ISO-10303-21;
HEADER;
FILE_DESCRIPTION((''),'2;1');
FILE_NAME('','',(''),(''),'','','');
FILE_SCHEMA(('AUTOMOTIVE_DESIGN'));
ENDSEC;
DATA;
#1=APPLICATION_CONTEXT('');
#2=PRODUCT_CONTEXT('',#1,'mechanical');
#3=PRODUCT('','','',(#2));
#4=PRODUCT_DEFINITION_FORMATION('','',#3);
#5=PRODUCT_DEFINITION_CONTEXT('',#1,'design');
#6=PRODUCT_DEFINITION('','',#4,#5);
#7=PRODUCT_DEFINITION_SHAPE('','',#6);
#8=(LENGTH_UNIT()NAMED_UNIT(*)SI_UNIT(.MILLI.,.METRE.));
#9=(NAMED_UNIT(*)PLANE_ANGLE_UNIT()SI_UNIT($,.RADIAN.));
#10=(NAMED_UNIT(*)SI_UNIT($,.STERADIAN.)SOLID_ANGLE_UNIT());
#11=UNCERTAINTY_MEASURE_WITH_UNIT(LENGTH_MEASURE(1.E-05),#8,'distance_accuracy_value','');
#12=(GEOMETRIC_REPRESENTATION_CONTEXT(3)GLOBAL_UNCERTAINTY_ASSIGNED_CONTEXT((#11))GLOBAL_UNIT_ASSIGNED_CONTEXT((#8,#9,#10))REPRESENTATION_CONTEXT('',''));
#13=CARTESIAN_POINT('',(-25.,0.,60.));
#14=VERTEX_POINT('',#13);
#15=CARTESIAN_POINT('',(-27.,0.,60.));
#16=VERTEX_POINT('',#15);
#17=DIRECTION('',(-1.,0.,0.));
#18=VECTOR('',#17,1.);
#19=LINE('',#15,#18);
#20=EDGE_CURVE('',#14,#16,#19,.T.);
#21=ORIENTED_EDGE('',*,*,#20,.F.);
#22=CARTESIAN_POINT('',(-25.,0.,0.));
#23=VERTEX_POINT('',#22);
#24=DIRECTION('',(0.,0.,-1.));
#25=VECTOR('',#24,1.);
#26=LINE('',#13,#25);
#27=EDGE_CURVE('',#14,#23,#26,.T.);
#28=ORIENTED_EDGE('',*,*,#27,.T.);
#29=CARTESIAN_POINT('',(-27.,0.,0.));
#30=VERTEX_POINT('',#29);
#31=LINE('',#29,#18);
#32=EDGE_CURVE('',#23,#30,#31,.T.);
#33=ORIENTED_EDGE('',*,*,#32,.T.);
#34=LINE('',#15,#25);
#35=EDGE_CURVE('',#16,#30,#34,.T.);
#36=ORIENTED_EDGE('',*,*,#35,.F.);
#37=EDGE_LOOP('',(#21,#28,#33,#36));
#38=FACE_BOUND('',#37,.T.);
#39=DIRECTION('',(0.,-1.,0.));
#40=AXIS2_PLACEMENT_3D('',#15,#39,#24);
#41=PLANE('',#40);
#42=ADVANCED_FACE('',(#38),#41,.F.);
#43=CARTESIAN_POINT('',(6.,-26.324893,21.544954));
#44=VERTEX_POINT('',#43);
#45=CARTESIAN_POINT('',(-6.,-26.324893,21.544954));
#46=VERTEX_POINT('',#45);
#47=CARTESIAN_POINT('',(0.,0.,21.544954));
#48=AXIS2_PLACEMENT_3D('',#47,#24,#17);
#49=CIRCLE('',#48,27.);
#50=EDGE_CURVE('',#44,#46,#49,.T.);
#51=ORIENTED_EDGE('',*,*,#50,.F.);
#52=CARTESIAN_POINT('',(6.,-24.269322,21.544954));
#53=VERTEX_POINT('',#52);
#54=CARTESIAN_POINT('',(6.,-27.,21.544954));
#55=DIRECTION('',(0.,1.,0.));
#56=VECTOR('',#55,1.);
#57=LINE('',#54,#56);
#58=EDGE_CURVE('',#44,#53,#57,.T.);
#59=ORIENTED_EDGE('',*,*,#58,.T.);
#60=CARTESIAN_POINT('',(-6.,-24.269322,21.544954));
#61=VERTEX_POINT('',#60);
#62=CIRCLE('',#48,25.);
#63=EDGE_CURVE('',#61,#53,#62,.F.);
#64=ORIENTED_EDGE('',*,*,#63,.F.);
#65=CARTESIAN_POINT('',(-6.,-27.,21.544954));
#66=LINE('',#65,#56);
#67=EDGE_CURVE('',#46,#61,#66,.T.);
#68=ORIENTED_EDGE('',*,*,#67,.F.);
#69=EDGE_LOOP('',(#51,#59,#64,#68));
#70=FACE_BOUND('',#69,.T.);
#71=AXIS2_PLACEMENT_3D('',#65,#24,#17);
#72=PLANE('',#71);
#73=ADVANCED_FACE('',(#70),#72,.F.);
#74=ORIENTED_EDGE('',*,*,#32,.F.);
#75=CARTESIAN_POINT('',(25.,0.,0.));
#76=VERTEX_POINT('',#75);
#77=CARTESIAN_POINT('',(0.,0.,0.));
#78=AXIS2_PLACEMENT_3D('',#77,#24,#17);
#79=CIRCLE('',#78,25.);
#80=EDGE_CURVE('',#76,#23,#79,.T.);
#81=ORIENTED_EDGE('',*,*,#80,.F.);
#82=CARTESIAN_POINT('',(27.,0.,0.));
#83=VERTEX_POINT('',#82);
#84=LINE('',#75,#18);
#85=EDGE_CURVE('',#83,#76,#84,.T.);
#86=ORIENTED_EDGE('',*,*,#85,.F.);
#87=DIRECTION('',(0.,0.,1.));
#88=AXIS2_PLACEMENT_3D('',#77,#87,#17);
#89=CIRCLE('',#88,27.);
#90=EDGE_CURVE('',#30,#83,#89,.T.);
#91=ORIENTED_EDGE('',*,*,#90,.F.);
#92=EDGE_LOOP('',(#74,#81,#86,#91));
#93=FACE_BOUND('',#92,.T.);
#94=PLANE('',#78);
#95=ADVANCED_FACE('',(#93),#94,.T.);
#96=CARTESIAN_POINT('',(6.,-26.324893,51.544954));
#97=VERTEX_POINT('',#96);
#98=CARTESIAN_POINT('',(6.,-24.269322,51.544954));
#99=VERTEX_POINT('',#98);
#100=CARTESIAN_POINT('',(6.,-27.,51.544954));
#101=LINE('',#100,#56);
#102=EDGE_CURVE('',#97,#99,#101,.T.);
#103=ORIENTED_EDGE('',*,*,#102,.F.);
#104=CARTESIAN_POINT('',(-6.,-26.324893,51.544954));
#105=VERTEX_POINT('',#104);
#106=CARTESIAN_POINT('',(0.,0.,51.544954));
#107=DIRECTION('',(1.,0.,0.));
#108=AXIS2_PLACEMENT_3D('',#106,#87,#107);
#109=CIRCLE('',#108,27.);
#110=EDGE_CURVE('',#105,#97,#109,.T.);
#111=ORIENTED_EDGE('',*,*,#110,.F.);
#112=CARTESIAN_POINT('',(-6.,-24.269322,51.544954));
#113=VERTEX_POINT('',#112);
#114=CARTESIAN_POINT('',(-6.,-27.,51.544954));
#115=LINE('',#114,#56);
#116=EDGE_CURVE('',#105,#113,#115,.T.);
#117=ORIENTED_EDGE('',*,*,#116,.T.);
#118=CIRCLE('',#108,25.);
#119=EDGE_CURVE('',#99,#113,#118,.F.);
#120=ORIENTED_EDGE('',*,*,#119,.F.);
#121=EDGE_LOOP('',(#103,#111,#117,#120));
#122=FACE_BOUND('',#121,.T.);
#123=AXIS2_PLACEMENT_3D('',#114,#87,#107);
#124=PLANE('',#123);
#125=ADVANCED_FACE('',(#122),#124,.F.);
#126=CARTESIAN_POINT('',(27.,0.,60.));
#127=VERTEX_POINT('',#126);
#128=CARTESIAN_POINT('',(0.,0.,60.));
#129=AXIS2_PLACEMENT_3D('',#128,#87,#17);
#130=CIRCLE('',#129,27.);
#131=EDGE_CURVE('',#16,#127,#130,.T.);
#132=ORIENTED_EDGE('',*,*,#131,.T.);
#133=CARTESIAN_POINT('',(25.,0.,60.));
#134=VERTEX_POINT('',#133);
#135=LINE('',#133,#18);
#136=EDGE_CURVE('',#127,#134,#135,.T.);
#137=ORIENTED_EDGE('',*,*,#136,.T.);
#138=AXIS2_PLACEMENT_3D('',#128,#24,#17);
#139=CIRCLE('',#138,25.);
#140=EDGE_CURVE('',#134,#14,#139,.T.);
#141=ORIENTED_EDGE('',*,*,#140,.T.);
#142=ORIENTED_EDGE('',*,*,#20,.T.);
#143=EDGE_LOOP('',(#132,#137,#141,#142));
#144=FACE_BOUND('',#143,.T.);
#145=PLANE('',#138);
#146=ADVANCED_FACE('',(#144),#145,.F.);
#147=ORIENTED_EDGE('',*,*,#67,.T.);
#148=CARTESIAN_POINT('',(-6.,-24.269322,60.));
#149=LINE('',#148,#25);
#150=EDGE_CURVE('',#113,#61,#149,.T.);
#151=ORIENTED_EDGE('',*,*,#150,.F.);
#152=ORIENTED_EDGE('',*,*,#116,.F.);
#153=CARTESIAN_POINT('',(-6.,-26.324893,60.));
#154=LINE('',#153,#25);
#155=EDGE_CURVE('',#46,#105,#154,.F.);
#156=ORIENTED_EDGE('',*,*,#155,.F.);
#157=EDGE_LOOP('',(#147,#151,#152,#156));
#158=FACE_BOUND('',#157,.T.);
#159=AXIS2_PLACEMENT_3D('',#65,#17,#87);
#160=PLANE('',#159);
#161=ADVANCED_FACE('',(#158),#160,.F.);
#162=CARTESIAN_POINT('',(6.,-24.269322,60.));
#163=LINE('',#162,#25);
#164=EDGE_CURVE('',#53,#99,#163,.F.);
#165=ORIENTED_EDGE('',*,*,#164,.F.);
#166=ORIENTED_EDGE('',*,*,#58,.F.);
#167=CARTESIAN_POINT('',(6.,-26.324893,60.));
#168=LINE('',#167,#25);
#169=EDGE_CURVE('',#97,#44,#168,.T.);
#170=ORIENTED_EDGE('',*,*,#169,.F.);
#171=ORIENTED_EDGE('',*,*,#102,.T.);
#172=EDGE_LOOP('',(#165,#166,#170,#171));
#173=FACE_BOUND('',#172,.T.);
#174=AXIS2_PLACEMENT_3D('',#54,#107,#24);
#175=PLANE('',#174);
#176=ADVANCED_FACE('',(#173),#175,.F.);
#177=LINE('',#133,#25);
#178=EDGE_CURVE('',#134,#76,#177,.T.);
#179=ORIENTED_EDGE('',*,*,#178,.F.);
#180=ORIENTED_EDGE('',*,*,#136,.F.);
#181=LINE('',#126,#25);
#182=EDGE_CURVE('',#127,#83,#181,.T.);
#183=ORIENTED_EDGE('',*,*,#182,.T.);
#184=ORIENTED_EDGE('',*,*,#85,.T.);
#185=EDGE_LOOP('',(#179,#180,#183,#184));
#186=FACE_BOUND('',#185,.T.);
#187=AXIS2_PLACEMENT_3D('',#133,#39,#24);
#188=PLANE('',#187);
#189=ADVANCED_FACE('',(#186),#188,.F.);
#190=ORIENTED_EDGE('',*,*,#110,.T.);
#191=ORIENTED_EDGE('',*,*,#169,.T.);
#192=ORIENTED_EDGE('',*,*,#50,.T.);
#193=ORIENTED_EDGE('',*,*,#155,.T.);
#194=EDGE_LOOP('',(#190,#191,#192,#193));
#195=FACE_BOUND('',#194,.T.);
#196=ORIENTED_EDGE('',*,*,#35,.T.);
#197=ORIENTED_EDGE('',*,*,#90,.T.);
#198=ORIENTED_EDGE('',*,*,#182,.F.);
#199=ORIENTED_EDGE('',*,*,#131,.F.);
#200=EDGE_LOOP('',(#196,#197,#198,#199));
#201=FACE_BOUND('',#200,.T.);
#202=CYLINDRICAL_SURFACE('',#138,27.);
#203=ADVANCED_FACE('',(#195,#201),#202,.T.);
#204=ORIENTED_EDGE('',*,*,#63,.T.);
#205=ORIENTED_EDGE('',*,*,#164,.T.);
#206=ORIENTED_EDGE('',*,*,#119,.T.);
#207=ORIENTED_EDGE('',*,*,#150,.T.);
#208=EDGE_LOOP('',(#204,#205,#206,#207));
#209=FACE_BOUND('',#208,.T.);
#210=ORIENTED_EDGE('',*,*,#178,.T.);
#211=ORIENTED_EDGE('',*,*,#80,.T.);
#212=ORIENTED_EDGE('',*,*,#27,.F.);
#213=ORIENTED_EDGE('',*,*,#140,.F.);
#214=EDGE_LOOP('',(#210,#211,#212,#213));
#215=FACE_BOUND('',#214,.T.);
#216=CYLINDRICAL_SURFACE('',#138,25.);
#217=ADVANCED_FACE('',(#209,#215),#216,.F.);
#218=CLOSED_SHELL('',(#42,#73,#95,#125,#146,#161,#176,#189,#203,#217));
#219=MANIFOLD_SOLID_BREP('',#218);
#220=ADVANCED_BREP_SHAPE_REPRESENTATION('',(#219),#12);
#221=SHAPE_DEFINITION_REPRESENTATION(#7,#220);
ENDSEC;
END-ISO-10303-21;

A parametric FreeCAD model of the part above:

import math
import FreeCAD as App
import Part
import Sketcher
Q = App.Units.Quantity

doc = App.newDocument("Part")
body = doc.addObject("PartDesign::Body", "Body")

# Sketch on XY plane
sketch1 = body.newObject("Sketcher::SketchObject", "Sketch")
sketch1.AttachmentSupport = (doc.getObject("XY_Plane"), [""])
sketch1.MapMode = "FlatFace"
sketch1.addGeometry([
    Part.LineSegment(App.Vector(-25, 0, 0), App.Vector(-27, 0, 0)),
    Part.ArcOfCircle(Part.Circle(App.Vector(0, 0, 0), App.Vector(0, 0, 1), 27), math.radians(180), math.radians(360)),
    Part.LineSegment(App.Vector(27, 0, 0), App.Vector(25, 0, 0)),
    Part.ArcOfCircle(Part.Circle(App.Vector(0, 0, 0), App.Vector(0, 0, 1), 25), math.radians(180), math.radians(360)),
], False)
sketch1.addConstraint([
    Sketcher.Constraint("Coincident", 0, 2, 1, 1),
    Sketcher.Constraint("Coincident", 1, 2, 2, 1),
    Sketcher.Constraint("Coincident", 2, 2, 3, 2),
    Sketcher.Constraint("Coincident", 3, 1, 0, 1),
    Sketcher.Constraint("Horizontal", 0),
    Sketcher.Constraint("Horizontal", 2),
    Sketcher.Constraint("Coincident", 1, 3, -1, 1),
    Sketcher.Constraint("Coincident", 3, 3, -1, 1),
    Sketcher.Constraint("PointOnObject", 0, 2, -1),
    Sketcher.Constraint("PointOnObject", 1, 2, -1),
    Sketcher.Constraint("Radius", 1, Q("27 mm")),
    Sketcher.Constraint("Radius", 3, Q("25 mm")),
])
pad1 = body.newObject("PartDesign::Pad", "Pad")
pad1.Profile = sketch1
pad1.Length = 60

# Sketch on XZ plane
sketch2 = body.newObject("Sketcher::SketchObject", "Sketch001")
sketch2.AttachmentSupport = (doc.getObject("XZ_Plane"), [""])
sketch2.MapMode = "FlatFace"
sketch2.addGeometry([
    Part.LineSegment(App.Vector(-6, 22, 0), App.Vector(-6, 52, 0)),
    Part.LineSegment(App.Vector(-6, 52, 0), App.Vector(6, 52, 0)),
    Part.LineSegment(App.Vector(6, 52, 0), App.Vector(6, 22, 0)),
    Part.LineSegment(App.Vector(6, 22, 0), App.Vector(-6, 22, 0)),
], False)
sketch2.addConstraint([
    Sketcher.Constraint("Coincident", 0, 2, 1, 1),
    Sketcher.Constraint("Coincident", 1, 2, 2, 1),
    Sketcher.Constraint("Coincident", 2, 2, 3, 1),
    Sketcher.Constraint("Coincident", 3, 2, 0, 1),
    Sketcher.Constraint("Vertical", 0),
    Sketcher.Constraint("Horizontal", 1),
    Sketcher.Constraint("Vertical", 2),
    Sketcher.Constraint("Horizontal", 3),
    Sketcher.Constraint("DistanceX", 1, 1, 1, 2, Q("12 mm")),
    Sketcher.Constraint("DistanceY", 0, 1, 0, 2, Q("30 mm")),
    Sketcher.Constraint("DistanceX", 0, 2, -1, 1, Q("6 mm")),
    Sketcher.Constraint("DistanceY", -1, 1, 0, 2, Q("51.544954 mm")),
])
pocket1 = body.newObject("PartDesign::Pocket", "Pocket")
pocket1.Profile = sketch2
pocket1.Type = "ThroughAll"
pocket1.Reversed = True

doc.recompute()
